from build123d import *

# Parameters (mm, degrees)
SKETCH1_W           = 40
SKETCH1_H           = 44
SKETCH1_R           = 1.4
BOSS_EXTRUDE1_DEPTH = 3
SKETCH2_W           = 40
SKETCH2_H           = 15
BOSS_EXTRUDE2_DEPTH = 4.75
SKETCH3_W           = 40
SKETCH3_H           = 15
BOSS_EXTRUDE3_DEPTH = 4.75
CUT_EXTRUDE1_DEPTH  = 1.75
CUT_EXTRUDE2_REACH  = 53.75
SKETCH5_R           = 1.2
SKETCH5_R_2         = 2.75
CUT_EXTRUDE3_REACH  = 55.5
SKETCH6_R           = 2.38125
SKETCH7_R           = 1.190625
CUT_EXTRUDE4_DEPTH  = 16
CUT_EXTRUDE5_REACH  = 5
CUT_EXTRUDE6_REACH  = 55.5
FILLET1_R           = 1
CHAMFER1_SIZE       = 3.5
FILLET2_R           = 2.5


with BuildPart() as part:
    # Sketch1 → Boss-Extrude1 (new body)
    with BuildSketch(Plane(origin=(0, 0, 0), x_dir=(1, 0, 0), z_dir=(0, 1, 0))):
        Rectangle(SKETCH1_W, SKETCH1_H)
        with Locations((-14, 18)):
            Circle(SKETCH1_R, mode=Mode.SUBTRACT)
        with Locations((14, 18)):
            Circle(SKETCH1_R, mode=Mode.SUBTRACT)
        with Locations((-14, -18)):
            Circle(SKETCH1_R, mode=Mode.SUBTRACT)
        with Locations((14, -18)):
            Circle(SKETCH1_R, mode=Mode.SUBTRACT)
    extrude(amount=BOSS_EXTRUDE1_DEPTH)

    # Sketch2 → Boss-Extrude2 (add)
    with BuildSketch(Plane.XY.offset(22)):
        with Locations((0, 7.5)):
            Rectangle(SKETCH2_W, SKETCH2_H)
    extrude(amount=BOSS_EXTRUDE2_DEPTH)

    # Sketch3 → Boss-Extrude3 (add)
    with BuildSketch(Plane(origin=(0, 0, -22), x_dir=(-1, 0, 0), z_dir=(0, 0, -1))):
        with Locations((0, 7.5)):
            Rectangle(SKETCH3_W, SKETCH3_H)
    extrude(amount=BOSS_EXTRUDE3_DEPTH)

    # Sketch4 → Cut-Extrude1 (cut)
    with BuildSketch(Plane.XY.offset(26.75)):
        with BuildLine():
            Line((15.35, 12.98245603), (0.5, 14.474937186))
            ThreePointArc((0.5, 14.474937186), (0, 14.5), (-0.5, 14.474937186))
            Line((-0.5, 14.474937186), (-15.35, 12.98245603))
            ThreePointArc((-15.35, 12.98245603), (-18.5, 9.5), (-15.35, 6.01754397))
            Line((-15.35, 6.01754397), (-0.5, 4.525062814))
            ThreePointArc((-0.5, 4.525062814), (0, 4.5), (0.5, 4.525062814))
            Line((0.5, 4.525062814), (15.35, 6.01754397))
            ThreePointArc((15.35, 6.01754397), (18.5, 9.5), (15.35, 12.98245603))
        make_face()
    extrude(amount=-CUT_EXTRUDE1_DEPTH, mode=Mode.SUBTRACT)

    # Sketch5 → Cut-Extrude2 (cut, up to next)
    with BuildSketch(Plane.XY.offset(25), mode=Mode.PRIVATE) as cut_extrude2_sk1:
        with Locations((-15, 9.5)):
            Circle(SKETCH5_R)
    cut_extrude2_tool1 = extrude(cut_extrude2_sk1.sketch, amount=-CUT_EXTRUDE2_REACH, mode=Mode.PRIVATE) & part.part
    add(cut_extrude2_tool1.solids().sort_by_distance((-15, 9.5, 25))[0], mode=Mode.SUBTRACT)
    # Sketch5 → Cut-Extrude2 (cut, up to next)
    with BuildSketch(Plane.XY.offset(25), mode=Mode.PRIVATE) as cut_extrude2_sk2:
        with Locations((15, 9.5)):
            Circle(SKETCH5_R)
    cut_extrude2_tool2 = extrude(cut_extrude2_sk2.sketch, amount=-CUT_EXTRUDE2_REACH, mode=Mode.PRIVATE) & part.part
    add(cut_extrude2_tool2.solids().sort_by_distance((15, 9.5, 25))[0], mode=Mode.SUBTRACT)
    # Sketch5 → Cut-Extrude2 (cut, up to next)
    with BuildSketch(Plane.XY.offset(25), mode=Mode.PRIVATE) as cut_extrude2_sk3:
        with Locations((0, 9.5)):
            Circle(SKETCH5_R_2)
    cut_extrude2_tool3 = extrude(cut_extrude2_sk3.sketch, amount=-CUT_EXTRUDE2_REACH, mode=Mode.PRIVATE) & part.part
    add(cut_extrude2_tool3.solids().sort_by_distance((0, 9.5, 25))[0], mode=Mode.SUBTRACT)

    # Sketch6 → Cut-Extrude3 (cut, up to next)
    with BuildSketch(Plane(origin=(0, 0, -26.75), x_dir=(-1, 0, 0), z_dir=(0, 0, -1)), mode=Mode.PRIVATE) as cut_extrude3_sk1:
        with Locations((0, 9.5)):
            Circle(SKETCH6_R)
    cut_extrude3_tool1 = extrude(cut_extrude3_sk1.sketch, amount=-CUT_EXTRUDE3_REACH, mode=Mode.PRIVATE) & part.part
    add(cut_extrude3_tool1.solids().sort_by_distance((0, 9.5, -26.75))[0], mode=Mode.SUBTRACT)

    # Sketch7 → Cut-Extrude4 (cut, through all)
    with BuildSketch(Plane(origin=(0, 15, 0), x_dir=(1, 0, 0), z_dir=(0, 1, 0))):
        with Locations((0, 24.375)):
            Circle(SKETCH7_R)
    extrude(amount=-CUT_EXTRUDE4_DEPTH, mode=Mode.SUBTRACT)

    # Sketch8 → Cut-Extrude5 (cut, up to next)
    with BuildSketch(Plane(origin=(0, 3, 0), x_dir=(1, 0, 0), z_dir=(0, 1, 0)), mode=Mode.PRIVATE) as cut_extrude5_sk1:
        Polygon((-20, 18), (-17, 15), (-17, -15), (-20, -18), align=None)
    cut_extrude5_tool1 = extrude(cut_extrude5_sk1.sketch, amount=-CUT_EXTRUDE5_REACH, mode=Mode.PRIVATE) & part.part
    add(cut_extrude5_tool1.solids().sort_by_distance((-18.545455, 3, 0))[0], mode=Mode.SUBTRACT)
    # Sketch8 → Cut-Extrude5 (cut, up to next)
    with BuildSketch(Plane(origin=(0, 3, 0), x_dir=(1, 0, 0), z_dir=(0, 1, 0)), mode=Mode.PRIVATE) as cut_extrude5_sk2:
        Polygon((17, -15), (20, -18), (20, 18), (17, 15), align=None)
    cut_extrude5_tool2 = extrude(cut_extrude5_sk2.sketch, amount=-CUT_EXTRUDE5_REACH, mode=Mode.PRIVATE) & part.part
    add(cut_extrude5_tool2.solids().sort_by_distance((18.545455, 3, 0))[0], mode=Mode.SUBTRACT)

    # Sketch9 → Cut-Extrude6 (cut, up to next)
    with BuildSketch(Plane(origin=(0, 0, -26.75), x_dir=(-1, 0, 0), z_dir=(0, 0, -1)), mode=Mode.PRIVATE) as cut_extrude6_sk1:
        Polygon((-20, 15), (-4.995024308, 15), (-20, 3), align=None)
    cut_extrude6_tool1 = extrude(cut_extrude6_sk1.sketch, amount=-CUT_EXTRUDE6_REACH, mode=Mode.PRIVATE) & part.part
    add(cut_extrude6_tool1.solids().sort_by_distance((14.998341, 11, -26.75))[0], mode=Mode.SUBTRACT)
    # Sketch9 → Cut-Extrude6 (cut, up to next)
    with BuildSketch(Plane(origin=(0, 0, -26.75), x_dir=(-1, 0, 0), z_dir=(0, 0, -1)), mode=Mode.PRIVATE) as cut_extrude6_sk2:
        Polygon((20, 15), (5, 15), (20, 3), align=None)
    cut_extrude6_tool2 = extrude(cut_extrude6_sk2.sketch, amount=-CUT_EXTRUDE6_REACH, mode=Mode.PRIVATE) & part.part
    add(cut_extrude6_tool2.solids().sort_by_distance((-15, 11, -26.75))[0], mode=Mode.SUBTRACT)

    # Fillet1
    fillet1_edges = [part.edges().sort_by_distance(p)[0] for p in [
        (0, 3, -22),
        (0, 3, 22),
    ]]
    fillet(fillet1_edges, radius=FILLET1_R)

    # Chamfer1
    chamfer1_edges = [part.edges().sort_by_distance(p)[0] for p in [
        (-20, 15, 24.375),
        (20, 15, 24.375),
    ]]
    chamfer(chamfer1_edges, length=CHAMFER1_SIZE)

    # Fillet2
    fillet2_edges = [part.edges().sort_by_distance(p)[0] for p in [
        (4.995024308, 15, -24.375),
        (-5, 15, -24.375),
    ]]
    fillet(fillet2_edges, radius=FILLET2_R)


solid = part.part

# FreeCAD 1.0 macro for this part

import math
import FreeCAD as App
import Part
import Sketcher
from FreeCAD import Vector
Q = App.Units.Quantity


def edges_at(feature, points):
    """Names of the edges that pass closest to the given points."""
    edges = feature.Shape.Edges
    near = lambda p: min(range(len(edges)), key=lambda i: edges[i].distToShape(Part.Vertex(*p))[0])
    return sorted({f"Edge{near(p) + 1}" for p in points})

doc = App.newDocument("Part")
body = doc.addObject("PartDesign::Body", "Body")

sketch1 = body.newObject("Sketcher::SketchObject", "Sketch")
sketch1.AttachmentSupport = (doc.getObject("XZ_Plane"), [""])
sketch1.MapMode = "FlatFace"
sketch1.addGeometry([
    Part.LineSegment(Vector(-20, -22, 0), Vector(-20, 22, 0)),
    Part.LineSegment(Vector(-20, 22, 0), Vector(20, 22, 0)),
    Part.LineSegment(Vector(20, 22, 0), Vector(20, -22, 0)),
    Part.LineSegment(Vector(20, -22, 0), Vector(-20, -22, 0)),
    Part.Circle(Vector(-14, 18, 0), Vector(0, 0, 1), 1.4),
    Part.Circle(Vector(14, 18, 0), Vector(0, 0, 1), 1.4),
    Part.Circle(Vector(-14, -18, 0), Vector(0, 0, 1), 1.4),
    Part.Circle(Vector(14, -18, 0), Vector(0, 0, 1), 1.4),
], False)
sketch1.addConstraint([
    Sketcher.Constraint("Coincident", 0, 2, 1, 1),
    Sketcher.Constraint("Coincident", 1, 2, 2, 1),
    Sketcher.Constraint("Coincident", 2, 2, 3, 1),
    Sketcher.Constraint("Coincident", 3, 2, 0, 1),
    Sketcher.Constraint("Vertical", 0),
    Sketcher.Constraint("Horizontal", 1),
    Sketcher.Constraint("Vertical", 2),
    Sketcher.Constraint("Horizontal", 3),
    Sketcher.Constraint("Equal", 4, 5),
    Sketcher.Constraint("Equal", 5, 6),
    Sketcher.Constraint("Equal", 6, 7),
    Sketcher.Constraint("Symmetric", 5, 3, 6, 3, -1, 1),
    Sketcher.Constraint("Symmetric", 4, 3, 7, 3, -1, 1),
    Sketcher.Constraint("Symmetric", 0, 2, 2, 2, -1, 1),
    Sketcher.Constraint("Symmetric", 4, 3, 5, 3, -2),
    Sketcher.Constraint("Diameter", 4, Q("2.8 mm")),
    Sketcher.Constraint("DistanceX", 1, 1, 1, 2, Q("40 mm")),
    Sketcher.Constraint("DistanceY", 0, 1, 0, 2, Q("44 mm")),
    Sketcher.Constraint("DistanceX", 4, 3, -1, 1, Q("14 mm")),
    Sketcher.Constraint("DistanceY", -1, 1, 4, 3, Q("18 mm")),
])
pad1 = body.newObject("PartDesign::Pad", "Pad")
pad1.Profile = sketch1
pad1.Length = 3
pad1.Reversed = True

sketch2 = body.newObject("Sketcher::SketchObject", "Sketch001")
sketch2.AttachmentSupport = (doc.getObject("XY_Plane"), [""])
sketch2.MapMode = "FlatFace"
sketch2.AttachmentOffset = App.Placement(Vector(0, 0, 22), App.Rotation())
sketch2.addGeometry([
    Part.LineSegment(Vector(-20, 15, 0), Vector(-20, 0, 0)),
    Part.LineSegment(Vector(-20, 0, 0), Vector(20, 0, 0)),
    Part.LineSegment(Vector(20, 0, 0), Vector(20, 15, 0)),
    Part.LineSegment(Vector(20, 15, 0), Vector(-20, 15, 0)),
], False)
sketch2.addConstraint([
    Sketcher.Constraint("Coincident", 0, 2, 1, 1),
    Sketcher.Constraint("Coincident", 1, 2, 2, 1),
    Sketcher.Constraint("Coincident", 2, 2, 3, 1),
    Sketcher.Constraint("Coincident", 3, 2, 0, 1),
    Sketcher.Constraint("Vertical", 0),
    Sketcher.Constraint("Horizontal", 1),
    Sketcher.Constraint("Vertical", 2),
    Sketcher.Constraint("Horizontal", 3),
    Sketcher.Constraint("Symmetric", 0, 2, 1, 2, -1, 1),
    Sketcher.Constraint("DistanceX", 1, 1, 1, 2, Q("40 mm")),
    Sketcher.Constraint("DistanceY", 0, 2, 0, 1, Q("15 mm")),
])
pad2 = body.newObject("PartDesign::Pad", "Pad001")
pad2.Profile = sketch2
pad2.Length = 4.75

sketch3 = body.newObject("Sketcher::SketchObject", "Sketch002")
sketch3.AttachmentSupport = (doc.getObject("XY_Plane"), [""])
sketch3.MapMode = "FlatFace"
sketch3.AttachmentOffset = App.Placement(Vector(0, 0, -22), App.Rotation())
sketch3.addGeometry([
    Part.LineSegment(Vector(20, 15, 0), Vector(20, 0, 0)),
    Part.LineSegment(Vector(20, 0, 0), Vector(-20, 0, 0)),
    Part.LineSegment(Vector(-20, 0, 0), Vector(-20, 15, 0)),
    Part.LineSegment(Vector(-20, 15, 0), Vector(20, 15, 0)),
], False)
sketch3.addConstraint([
    Sketcher.Constraint("Coincident", 0, 2, 1, 1),
    Sketcher.Constraint("Coincident", 1, 2, 2, 1),
    Sketcher.Constraint("Coincident", 2, 2, 3, 1),
    Sketcher.Constraint("Coincident", 3, 2, 0, 1),
    Sketcher.Constraint("Vertical", 0),
    Sketcher.Constraint("Horizontal", 1),
    Sketcher.Constraint("Vertical", 2),
    Sketcher.Constraint("Horizontal", 3),
    Sketcher.Constraint("Symmetric", 0, 2, 1, 2, -1, 1),
    Sketcher.Constraint("DistanceX", 1, 2, 1, 1, Q("40 mm")),
    Sketcher.Constraint("DistanceY", 0, 2, 0, 1, Q("15 mm")),
])
pad3 = body.newObject("PartDesign::Pad", "Pad002")
pad3.Profile = sketch3
pad3.Length = 4.75
pad3.Reversed = True

sketch4 = body.newObject("Sketcher::SketchObject", "Sketch003")
sketch4.AttachmentSupport = (doc.getObject("XY_Plane"), [""])
sketch4.MapMode = "FlatFace"
sketch4.AttachmentOffset = App.Placement(Vector(0, 0, 26.75), App.Rotation())
sketch4.addGeometry([
    Part.LineSegment(Vector(15.35, 12.982456, 0), Vector(0.5, 14.474937, 0)),
    Part.ArcOfCircle(Part.Circle(Vector(0, 9.5, 0), Vector(0, 0, 1), 5), math.radians(84.26083), math.radians(95.73917)),
    Part.LineSegment(Vector(-0.5, 14.474937, 0), Vector(-15.35, 12.982456, 0)),
    Part.ArcOfCircle(Part.Circle(Vector(-15, 9.5, 0), Vector(0, 0, 1), 3.5), math.radians(95.73917), math.radians(264.26083)),
    Part.LineSegment(Vector(-15.35, 6.017544, 0), Vector(-0.5, 4.525063, 0)),
    Part.ArcOfCircle(Part.Circle(Vector(0, 9.5, 0), Vector(0, 0, 1), 5), math.radians(-95.73917), math.radians(-84.26083)),
    Part.LineSegment(Vector(0.5, 4.525063, 0), Vector(15.35, 6.017544, 0)),
    Part.ArcOfCircle(Part.Circle(Vector(15, 9.5, 0), Vector(0, 0, 1), 3.5), math.radians(-84.26083), math.radians(84.26083)),
], False)
sketch4.addConstraint([
    Sketcher.Constraint("Tangent", 0, 2, 1, 1),
    Sketcher.Constraint("Tangent", 1, 2, 2, 1),
    Sketcher.Constraint("Tangent", 2, 2, 3, 1),
    Sketcher.Constraint("Tangent", 3, 2, 4, 1),
    Sketcher.Constraint("Tangent", 4, 2, 5, 1),
    Sketcher.Constraint("Tangent", 5, 2, 6, 1),
    Sketcher.Constraint("Tangent", 6, 2, 7, 1),
    Sketcher.Constraint("Tangent", 7, 2, 0, 1),
    Sketcher.Constraint("Coincident", 5, 3, 1, 3),
    Sketcher.Constraint("Equal", 1, 5),
    Sketcher.Constraint("Equal", 3, 7),
    Sketcher.Constraint("Symmetric", 3, 3, 7, 3, -2),
    Sketcher.Constraint("PointOnObject", 1, 3, -2),
    Sketcher.Constraint("Parallel", 0, 4),
    Sketcher.Constraint("Radius", 1, Q("5 mm")),
    Sketcher.Constraint("Radius", 3, Q("3.5 mm")),
    Sketcher.Constraint("DistanceX", 3, 3, -1, 1, Q("15 mm")),
    Sketcher.Constraint("DistanceY", -1, 1, 1, 3, Q("9.5 mm")),
])
pocket1 = body.newObject("PartDesign::Pocket", "Pocket")
pocket1.Profile = sketch4
pocket1.Length = 1.75

sketch5 = body.newObject("Sketcher::SketchObject", "Sketch004")
sketch5.AttachmentSupport = (doc.getObject("XY_Plane"), [""])
sketch5.MapMode = "FlatFace"
sketch5.AttachmentOffset = App.Placement(Vector(0, 0, 25), App.Rotation())
sketch5.addGeometry(Part.Circle(Vector(-15, 9.5, 0), Vector(0, 0, 1), 1.2), False)
sketch5.addConstraint([
    Sketcher.Constraint("Diameter", 0, Q("2.4 mm")),
    Sketcher.Constraint("DistanceX", 0, 3, -1, 1, Q("15 mm")),
    Sketcher.Constraint("DistanceY", -1, 1, 0, 3, Q("9.5 mm")),
])
pocket2 = body.newObject("PartDesign::Pocket", "Pocket001")
pocket2.Profile = sketch5
pocket2.Type = "UpToFirst"

sketch6 = body.newObject("Sketcher::SketchObject", "Sketch005")
sketch6.AttachmentSupport = (doc.getObject("XY_Plane"), [""])
sketch6.MapMode = "FlatFace"
sketch6.AttachmentOffset = App.Placement(Vector(0, 0, 25), App.Rotation())
sketch6.addGeometry(Part.Circle(Vector(15, 9.5, 0), Vector(0, 0, 1), 1.2), False)
sketch6.addConstraint([
    Sketcher.Constraint("Diameter", 0, Q("2.4 mm")),
    Sketcher.Constraint("DistanceX", -1, 1, 0, 3, Q("15 mm")),
    Sketcher.Constraint("DistanceY", -1, 1, 0, 3, Q("9.5 mm")),
])
pocket3 = body.newObject("PartDesign::Pocket", "Pocket002")
pocket3.Profile = sketch6
pocket3.Type = "UpToFirst"

sketch7 = body.newObject("Sketcher::SketchObject", "Sketch006")
sketch7.AttachmentSupport = (doc.getObject("XY_Plane"), [""])
sketch7.MapMode = "FlatFace"
sketch7.AttachmentOffset = App.Placement(Vector(0, 0, 25), App.Rotation())
sketch7.addGeometry(Part.Circle(Vector(0, 9.5, 0), Vector(0, 0, 1), 2.75), False)
sketch7.addConstraint([
    Sketcher.Constraint("PointOnObject", 0, 3, -2),
    Sketcher.Constraint("Diameter", 0, Q("5.5 mm")),
    Sketcher.Constraint("DistanceY", -1, 1, 0, 3, Q("9.5 mm")),
])
pocket4 = body.newObject("PartDesign::Pocket", "Pocket003")
pocket4.Profile = sketch7
pocket4.Type = "UpToFirst"

sketch8 = body.newObject("Sketcher::SketchObject", "Sketch007")
sketch8.AttachmentSupport = (doc.getObject("XY_Plane"), [""])
sketch8.MapMode = "FlatFace"
sketch8.AttachmentOffset = App.Placement(Vector(0, 0, -26.75), App.Rotation())
sketch8.addGeometry(Part.Circle(Vector(0, 9.5, 0), Vector(0, 0, 1), 2.38125), False)
sketch8.addConstraint([
    Sketcher.Constraint("PointOnObject", 0, 3, -2),
    Sketcher.Constraint("Diameter", 0, Q("4.7625 mm")),
    Sketcher.Constraint("DistanceY", -1, 1, 0, 3, Q("9.5 mm")),
])
pocket5 = body.newObject("PartDesign::Pocket", "Pocket004")
pocket5.Profile = sketch8
pocket5.Type = "UpToFirst"
pocket5.Reversed = True

sketch9 = body.newObject("Sketcher::SketchObject", "Sketch008")
sketch9.AttachmentSupport = (doc.getObject("XZ_Plane"), [""])
sketch9.MapMode = "FlatFace"
sketch9.AttachmentOffset = App.Placement(Vector(0, 0, -15), App.Rotation())
sketch9.addGeometry(Part.Circle(Vector(0, -24.375, 0), Vector(0, 0, 1), 1.190625), False)
sketch9.addConstraint([
    Sketcher.Constraint("PointOnObject", 0, 3, -2),
    Sketcher.Constraint("Diameter", 0, Q("2.38125 mm")),
    Sketcher.Constraint("DistanceY", 0, 3, -1, 1, Q("24.375 mm")),
])
pocket6 = body.newObject("PartDesign::Pocket", "Pocket005")
pocket6.Profile = sketch9
pocket6.Type = "ThroughAll"
pocket6.Reversed = True

sketch10 = body.newObject("Sketcher::SketchObject", "Sketch009")
sketch10.AttachmentSupport = (doc.getObject("XZ_Plane"), [""])
sketch10.MapMode = "FlatFace"
sketch10.AttachmentOffset = App.Placement(Vector(0, 0, -3), App.Rotation())
sketch10.addGeometry([
    Part.LineSegment(Vector(-17, -15, 0), Vector(-20, -18, 0)),
    Part.LineSegment(Vector(-20, -18, 0), Vector(-20, 18, 0)),
    Part.LineSegment(Vector(-20, 18, 0), Vector(-17, 15, 0)),
    Part.LineSegment(Vector(-17, 15, 0), Vector(-17, -15, 0)),
], False)
sketch10.addConstraint([
    Sketcher.Constraint("Coincident", 0, 2, 1, 1),
    Sketcher.Constraint("Coincident", 1, 2, 2, 1),
    Sketcher.Constraint("Coincident", 2, 2, 3, 1),
    Sketcher.Constraint("Coincident", 3, 2, 0, 1),
    Sketcher.Constraint("Vertical", 1),
    Sketcher.Constraint("Vertical", 3),
    Sketcher.Constraint("Perpendicular", 0, 2),
    Sketcher.Constraint("Equal", 0, 2),
    Sketcher.Constraint("DistanceY", 1, 1, 1, 2, Q("36 mm")),
    Sketcher.Constraint("DistanceY", 3, 2, 3, 1, Q("30 mm")),
    Sketcher.Constraint("DistanceX", 0, 2, -1, 1, Q("20 mm")),
    Sketcher.Constraint("DistanceY", 0, 2, -1, 1, Q("18 mm")),
])
pocket7 = body.newObject("PartDesign::Pocket", "Pocket006")
pocket7.Profile = sketch10
pocket7.Type = "UpToFirst"
pocket7.Reversed = True

sketch11 = body.newObject("Sketcher::SketchObject", "Sketch010")
sketch11.AttachmentSupport = (doc.getObject("XZ_Plane"), [""])
sketch11.MapMode = "FlatFace"
sketch11.AttachmentOffset = App.Placement(Vector(0, 0, -3), App.Rotation())
sketch11.addGeometry([
    Part.LineSegment(Vector(17, 15, 0), Vector(20, 18, 0)),
    Part.LineSegment(Vector(20, 18, 0), Vector(20, -18, 0)),
    Part.LineSegment(Vector(20, -18, 0), Vector(17, -15, 0)),
    Part.LineSegment(Vector(17, -15, 0), Vector(17, 15, 0)),
], False)
sketch11.addConstraint([
    Sketcher.Constraint("Coincident", 0, 2, 1, 1),
    Sketcher.Constraint("Coincident", 1, 2, 2, 1),
    Sketcher.Constraint("Coincident", 2, 2, 3, 1),
    Sketcher.Constraint("Coincident", 3, 2, 0, 1),
    Sketcher.Constraint("Vertical", 1),
    Sketcher.Constraint("Vertical", 3),
    Sketcher.Constraint("Perpendicular", 0, 2),
    Sketcher.Constraint("Equal", 0, 2),
    Sketcher.Constraint("DistanceY", 1, 2, 1, 1, Q("36 mm")),
    Sketcher.Constraint("DistanceY", 3, 1, 3, 2, Q("30 mm")),
    Sketcher.Constraint("DistanceX", -1, 1, 0, 2, Q("20 mm")),
    Sketcher.Constraint("DistanceY", -1, 1, 0, 2, Q("18 mm")),
])
pocket8 = body.newObject("PartDesign::Pocket", "Pocket007")
pocket8.Profile = sketch11
pocket8.Type = "UpToFirst"
pocket8.Reversed = True

sketch12 = body.newObject("Sketcher::SketchObject", "Sketch011")
sketch12.AttachmentSupport = (doc.getObject("XY_Plane"), [""])
sketch12.MapMode = "FlatFace"
sketch12.AttachmentOffset = App.Placement(Vector(0, 0, -26.75), App.Rotation())
sketch12.addGeometry([
    Part.LineSegment(Vector(4.995024, 15, 0), Vector(20, 15, 0)),
    Part.LineSegment(Vector(20, 15, 0), Vector(20, 3, 0)),
    Part.LineSegment(Vector(20, 3, 0), Vector(4.995024, 15, 0)),
], False)
sketch12.addConstraint([
    Sketcher.Constraint("Coincident", 0, 2, 1, 1),
    Sketcher.Constraint("Coincident", 1, 2, 2, 1),
    Sketcher.Constraint("Coincident", 2, 2, 0, 1),
    Sketcher.Constraint("Horizontal", 0),
    Sketcher.Constraint("Vertical", 1),
    Sketcher.Constraint("DistanceY", 1, 2, 1, 1, Q("12 mm")),
    Sketcher.Constraint("DistanceX", -1, 1, 0, 2, Q("20 mm")),
    Sketcher.Constraint("DistanceY", -1, 1, 0, 2, Q("15 mm")),
    Sketcher.Constraint("Distance", 2, Q("19.213258 mm")),
])
pocket9 = body.newObject("PartDesign::Pocket", "Pocket008")
pocket9.Profile = sketch12
pocket9.Type = "UpToFirst"
pocket9.Reversed = True

sketch13 = body.newObject("Sketcher::SketchObject", "Sketch012")
sketch13.AttachmentSupport = (doc.getObject("XY_Plane"), [""])
sketch13.MapMode = "FlatFace"
sketch13.AttachmentOffset = App.Placement(Vector(0, 0, -26.75), App.Rotation())
sketch13.addGeometry([
    Part.LineSegment(Vector(-20, 15, 0), Vector(-5, 15, 0)),
    Part.LineSegment(Vector(-5, 15, 0), Vector(-20, 3, 0)),
    Part.LineSegment(Vector(-20, 3, 0), Vector(-20, 15, 0)),
], False)
sketch13.addConstraint([
    Sketcher.Constraint("Coincident", 0, 2, 1, 1),
    Sketcher.Constraint("Coincident", 1, 2, 2, 1),
    Sketcher.Constraint("Coincident", 2, 2, 0, 1),
    Sketcher.Constraint("Horizontal", 0),
    Sketcher.Constraint("Vertical", 2),
    Sketcher.Constraint("DistanceX", 0, 1, 0, 2, Q("15 mm")),
    Sketcher.Constraint("DistanceY", 2, 1, 2, 2, Q("12 mm")),
    Sketcher.Constraint("DistanceX", 0, 2, -1, 1, Q("5 mm")),
    Sketcher.Constraint("DistanceY", -1, 1, 0, 2, Q("15 mm")),
])
pocket10 = body.newObject("PartDesign::Pocket", "Pocket009")
pocket10.Profile = sketch13
pocket10.Type = "UpToFirst"
pocket10.Reversed = True
doc.recompute()

fillet = body.newObject("PartDesign::Fillet", "Fillet")
fillet.Base = (pocket10, edges_at(pocket10, [(0, 3, -22), (0, 3, 22)]))
fillet.Radius = 1
doc.recompute()

chamfer = body.newObject("PartDesign::Chamfer", "Chamfer")
chamfer.Base = (fillet, edges_at(fillet, [(-20, 15, 24.375), (20, 15, 24.375)]))
chamfer.Size = 3.5
doc.recompute()

fillet2 = body.newObject("PartDesign::Fillet", "Fillet001")
fillet2.Base = (chamfer, edges_at(chamfer, [(4.995, 15, -24.375), (-5, 15, -24.375)]))
fillet2.Radius = 2.5

doc.recompute()
